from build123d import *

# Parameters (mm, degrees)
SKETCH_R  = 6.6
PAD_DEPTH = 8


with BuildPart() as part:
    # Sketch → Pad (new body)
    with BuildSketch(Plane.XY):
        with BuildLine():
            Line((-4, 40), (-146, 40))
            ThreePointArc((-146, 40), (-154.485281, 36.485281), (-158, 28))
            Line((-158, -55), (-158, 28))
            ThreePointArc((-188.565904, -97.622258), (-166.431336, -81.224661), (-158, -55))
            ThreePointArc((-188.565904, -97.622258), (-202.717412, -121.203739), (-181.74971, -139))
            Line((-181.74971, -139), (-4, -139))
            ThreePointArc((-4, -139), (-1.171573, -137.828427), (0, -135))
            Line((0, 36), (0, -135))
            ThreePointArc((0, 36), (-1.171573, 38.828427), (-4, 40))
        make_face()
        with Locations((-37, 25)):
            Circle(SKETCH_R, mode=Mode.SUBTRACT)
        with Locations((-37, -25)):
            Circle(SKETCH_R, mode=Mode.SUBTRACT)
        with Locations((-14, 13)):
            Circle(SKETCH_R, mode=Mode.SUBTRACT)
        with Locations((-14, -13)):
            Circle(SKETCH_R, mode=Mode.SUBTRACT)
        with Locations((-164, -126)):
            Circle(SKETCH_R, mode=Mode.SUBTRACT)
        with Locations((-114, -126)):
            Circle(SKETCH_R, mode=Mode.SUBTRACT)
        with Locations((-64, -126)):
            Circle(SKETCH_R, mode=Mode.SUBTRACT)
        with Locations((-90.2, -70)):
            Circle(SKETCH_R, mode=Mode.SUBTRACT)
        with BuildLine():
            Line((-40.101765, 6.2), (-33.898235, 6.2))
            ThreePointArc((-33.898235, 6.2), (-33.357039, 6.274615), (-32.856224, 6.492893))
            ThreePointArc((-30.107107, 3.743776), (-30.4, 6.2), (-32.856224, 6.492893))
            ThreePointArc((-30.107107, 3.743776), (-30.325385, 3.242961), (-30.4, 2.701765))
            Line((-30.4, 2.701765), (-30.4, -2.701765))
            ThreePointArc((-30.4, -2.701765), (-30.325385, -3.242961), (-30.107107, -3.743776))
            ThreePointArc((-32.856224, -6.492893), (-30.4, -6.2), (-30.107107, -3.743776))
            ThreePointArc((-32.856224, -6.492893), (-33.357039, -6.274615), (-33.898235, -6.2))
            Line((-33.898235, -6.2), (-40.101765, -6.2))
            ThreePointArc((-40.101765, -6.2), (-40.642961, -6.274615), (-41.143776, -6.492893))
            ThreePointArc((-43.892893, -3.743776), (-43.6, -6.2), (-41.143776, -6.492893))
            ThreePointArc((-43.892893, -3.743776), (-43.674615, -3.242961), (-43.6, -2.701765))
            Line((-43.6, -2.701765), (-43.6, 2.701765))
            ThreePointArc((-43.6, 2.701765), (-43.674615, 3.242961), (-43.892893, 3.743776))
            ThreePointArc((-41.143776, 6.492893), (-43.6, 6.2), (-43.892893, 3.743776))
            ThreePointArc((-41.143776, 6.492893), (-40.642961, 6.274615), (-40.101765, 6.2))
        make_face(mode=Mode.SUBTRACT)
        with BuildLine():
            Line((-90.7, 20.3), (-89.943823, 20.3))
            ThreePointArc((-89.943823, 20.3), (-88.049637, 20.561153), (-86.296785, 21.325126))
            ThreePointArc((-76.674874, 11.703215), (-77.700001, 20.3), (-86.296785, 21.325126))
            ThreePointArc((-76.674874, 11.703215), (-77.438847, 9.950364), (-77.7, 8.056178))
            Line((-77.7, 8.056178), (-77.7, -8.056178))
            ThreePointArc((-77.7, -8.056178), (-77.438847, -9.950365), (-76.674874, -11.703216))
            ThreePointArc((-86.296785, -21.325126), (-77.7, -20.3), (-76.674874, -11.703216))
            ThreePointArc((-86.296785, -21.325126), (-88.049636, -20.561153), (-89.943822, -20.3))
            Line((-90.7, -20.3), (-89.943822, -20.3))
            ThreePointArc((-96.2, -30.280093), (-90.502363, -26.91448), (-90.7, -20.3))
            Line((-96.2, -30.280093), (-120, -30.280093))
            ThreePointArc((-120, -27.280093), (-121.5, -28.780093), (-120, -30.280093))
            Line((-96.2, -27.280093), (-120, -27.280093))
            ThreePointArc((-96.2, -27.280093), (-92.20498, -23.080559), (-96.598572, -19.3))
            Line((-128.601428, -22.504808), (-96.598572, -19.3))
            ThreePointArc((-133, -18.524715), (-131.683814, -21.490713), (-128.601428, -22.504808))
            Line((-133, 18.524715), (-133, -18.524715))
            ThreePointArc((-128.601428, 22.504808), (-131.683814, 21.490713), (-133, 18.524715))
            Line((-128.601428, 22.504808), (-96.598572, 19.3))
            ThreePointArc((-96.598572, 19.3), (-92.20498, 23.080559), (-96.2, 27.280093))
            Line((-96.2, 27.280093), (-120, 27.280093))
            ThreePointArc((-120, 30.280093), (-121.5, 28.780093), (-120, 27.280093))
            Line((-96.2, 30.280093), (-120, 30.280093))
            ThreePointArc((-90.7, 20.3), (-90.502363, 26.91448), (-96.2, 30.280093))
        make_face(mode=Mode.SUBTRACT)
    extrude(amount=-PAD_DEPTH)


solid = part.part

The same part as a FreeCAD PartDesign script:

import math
import FreeCAD as App
import Part
import Sketcher
Q = App.Units.Quantity

doc = App.newDocument("Part")
body = doc.addObject("PartDesign::Body", "Body")

sketch1 = body.newObject("Sketcher::SketchObject", "Sketch")
sketch1.AttachmentSupport = (doc.getObject("XY_Plane"), [""])
sketch1.MapMode = "FlatFace"
sketch1.addGeometry(Part.LineSegment(App.Vector(-4, 40, 0), App.Vector(-146, 40, 0)), False)
sketch1.addGeometry(Part.ArcOfCircle(Part.Circle(App.Vector(-146, 28, 0), App.Vector(0, 0, 1), 12), math.radians(90), math.radians(180)), False)
sketch1.addGeometry(Part.LineSegment(App.Vector(-158, 28, 0), App.Vector(-158, -55, 0)), False)
sketch1.addGeometry(Part.ArcOfCircle(Part.Circle(App.Vector(-203, -55, 0), App.Vector(0, 0, 1), 45), math.radians(-71), math.radians(0)), False)
sketch1.addGeometry(Part.ArcOfCircle(Part.Circle(App.Vector(-181.7, -117.7, 0), App.Vector(0, 0, 1), 21.3), math.radians(109), math.radians(270)), False)
sketch1.addGeometry(Part.LineSegment(App.Vector(-181.7, -139, 0), App.Vector(-4, -139, 0)), False)
sketch1.addGeometry(Part.ArcOfCircle(Part.Circle(App.Vector(-4, -135, 0), App.Vector(0, 0, 1), 4), math.radians(-90), math.radians(0)), False)
sketch1.addGeometry(Part.LineSegment(App.Vector(0, -135, 0), App.Vector(0, 36, 0)), False)
sketch1.addGeometry(Part.ArcOfCircle(Part.Circle(App.Vector(-4, 36, 0), App.Vector(0, 0, 1), 4), math.radians(0), math.radians(90)), False)
sketch1.addGeometry(Part.Circle(App.Vector(-164, -126, 0), App.Vector(0, 0, 1), 6.6), False)
sketch1.addGeometry(Part.Circle(App.Vector(-114, -126, 0), App.Vector(0, 0, 1), 6.6), False)
sketch1.addGeometry(Part.Circle(App.Vector(-90.2, -70, 0), App.Vector(0, 0, 1), 6.6), False)
sketch1.addGeometry(Part.Circle(App.Vector(-64, -126, 0), App.Vector(0, 0, 1), 6.6), False)
sketch1.addGeometry(Part.ArcOfCircle(Part.Circle(App.Vector(-96.2, 23.8, 0), App.Vector(0, 0, 1), 6.5), math.radians(-32), math.radians(90)), False)
sketch1.addGeometry(Part.LineSegment(App.Vector(-90.7, 20.3, 0), App.Vector(-89.9, 20.3, 0)), False)
sketch1.addGeometry(Part.ArcOfCircle(Part.Circle(App.Vector(-89.9, 27.3, 0), App.Vector(0, 0, 1), 7), math.radians(-90), math.radians(-59)), False)
sketch1.addGeometry(Part.ArcOfCircle(Part.Circle(App.Vector(-82.6, 15.4, 0), App.Vector(0, 0, 1), 7), math.radians(-31), math.radians(121)), False)
sketch1.addGeometry(Part.ArcOfCircle(Part.Circle(App.Vector(-70.7, 8.1, 0), App.Vector(0, 0, 1), 7), math.radians(149), math.radians(180)), False)
sketch1.addGeometry(Part.LineSegment(App.Vector(-77.7, 8.1, 0), App.Vector(-77.7, -8.1, 0)), False)
sketch1.addGeometry(Part.ArcOfCircle(Part.Circle(App.Vector(-70.7, -8.1, 0), App.Vector(0, 0, 1), 7), math.radians(180), math.radians(211)), False)
sketch1.addGeometry(Part.ArcOfCircle(Part.Circle(App.Vector(-82.6, -15.4, 0), App.Vector(0, 0, 1), 7), math.radians(-121), math.radians(31)), False)
sketch1.addGeometry(Part.ArcOfCircle(Part.Circle(App.Vector(-89.9, -27.3, 0), App.Vector(0, 0, 1), 7), math.radians(59), math.radians(90)), False)
sketch1.addGeometry(Part.LineSegment(App.Vector(-89.9, -20.3, 0), App.Vector(-90.7, -20.3, 0)), False)
sketch1.addGeometry(Part.ArcOfCircle(Part.Circle(App.Vector(-96.2, -23.8, 0), App.Vector(0, 0, 1), 6.5), math.radians(-90), math.radians(32)), False)
sketch1.addGeometry(Part.LineSegment(App.Vector(-96.2, -30.3, 0), App.Vector(-120, -30.3, 0)), False)
sketch1.addGeometry(Part.ArcOfCircle(Part.Circle(App.Vector(-120, -28.8, 0), App.Vector(0, 0, 1), 1.5), math.radians(90), math.radians(270)), False)
sketch1.addGeometry(Part.LineSegment(App.Vector(-120, -27.3, 0), App.Vector(-96.2, -27.3, 0)), False)
sketch1.addGeometry(Part.ArcOfCircle(Part.Circle(App.Vector(-96.2, -23.3, 0), App.Vector(0, 0, 1), 4), math.radians(-90), math.radians(96)), False)
sketch1.addGeometry(Part.LineSegment(App.Vector(-96.6, -19.3, 0), App.Vector(-128.6, -22.5, 0)), False)
sketch1.addGeometry(Part.ArcOfCircle(Part.Circle(App.Vector(-129, -18.5, 0), App.Vector(0, 0, 1), 4), math.radians(180), math.radians(276)), False)
sketch1.addGeometry(Part.LineSegment(App.Vector(-133, -18.5, 0), App.Vector(-133, 18.5, 0)), False)
sketch1.addGeometry(Part.ArcOfCircle(Part.Circle(App.Vector(-129, 18.5, 0), App.Vector(0, 0, 1), 4), math.radians(84), math.radians(180)), False)
sketch1.addGeometry(Part.LineSegment(App.Vector(-128.6, 22.5, 0), App.Vector(-96.6, 19.3, 0)), False)
sketch1.addGeometry(Part.ArcOfCircle(Part.Circle(App.Vector(-96.2, 23.3, 0), App.Vector(0, 0, 1), 4), math.radians(-96), math.radians(90)), False)
sketch1.addGeometry(Part.LineSegment(App.Vector(-96.2, 27.3, 0), App.Vector(-120, 27.3, 0)), False)
sketch1.addGeometry(Part.ArcOfCircle(Part.Circle(App.Vector(-120, 28.8, 0), App.Vector(0, 0, 1), 1.5), math.radians(90), math.radians(270)), False)
sketch1.addGeometry(Part.LineSegment(App.Vector(-120, 30.3, 0), App.Vector(-96.2, 30.3, 0)), False)
sketch1.addGeometry(Part.Circle(App.Vector(-37, -25, 0), App.Vector(0, 0, 1), 6.6), False)
sketch1.addGeometry(Part.Circle(App.Vector(-14, -13, 0), App.Vector(0, 0, 1), 6.6), False)
sketch1.addGeometry(Part.ArcOfCircle(Part.Circle(App.Vector(-40.1, 8.2, 0), App.Vector(0, 0, 1), 2), math.radians(-121), math.radians(-90)), False)
sketch1.addGeometry(Part.LineSegment(App.Vector(-40.1, 6.2, 0), App.Vector(-33.9, 6.2, 0)), False)
sketch1.addGeometry(Part.ArcOfCircle(Part.Circle(App.Vector(-33.9, 8.2, 0), App.Vector(0, 0, 1), 2), math.radians(-90), math.radians(-59)), False)
sketch1.addGeometry(Part.ArcOfCircle(Part.Circle(App.Vector(-31.8, 4.8, 0), App.Vector(0, 0, 1), 2), math.radians(-31), math.radians(121)), False)
sketch1.addGeometry(Part.ArcOfCircle(Part.Circle(App.Vector(-28.4, 2.7, 0), App.Vector(0, 0, 1), 2), math.radians(149), math.radians(180)), False)
sketch1.addGeometry(Part.LineSegment(App.Vector(-30.4, 2.7, 0), App.Vector(-30.4, -2.7, 0)), False)
sketch1.addGeometry(Part.ArcOfCircle(Part.Circle(App.Vector(-28.4, -2.7, 0), App.Vector(0, 0, 1), 2), math.radians(180), math.radians(211)), False)
sketch1.addGeometry(Part.ArcOfCircle(Part.Circle(App.Vector(-31.8, -4.8, 0), App.Vector(0, 0, 1), 2), math.radians(-121), math.radians(31)), False)
sketch1.addGeometry(Part.ArcOfCircle(Part.Circle(App.Vector(-33.9, -8.2, 0), App.Vector(0, 0, 1), 2), math.radians(59), math.radians(90)), False)
sketch1.addGeometry(Part.LineSegment(App.Vector(-33.9, -6.2, 0), App.Vector(-40.1, -6.2, 0)), False)
sketch1.addGeometry(Part.ArcOfCircle(Part.Circle(App.Vector(-40.1, -8.2, 0), App.Vector(0, 0, 1), 2), math.radians(90), math.radians(121)), False)
sketch1.addGeometry(Part.ArcOfCircle(Part.Circle(App.Vector(-42.2, -4.8, 0), App.Vector(0, 0, 1), 2), math.radians(149), math.radians(301)), False)
sketch1.addGeometry(Part.ArcOfCircle(Part.Circle(App.Vector(-45.6, -2.7, 0), App.Vector(0, 0, 1), 2), math.radians(-31), math.radians(0)), False)
sketch1.addGeometry(Part.LineSegment(App.Vector(-43.6, -2.7, 0), App.Vector(-43.6, 2.7, 0)), False)
sketch1.addGeometry(Part.ArcOfCircle(Part.Circle(App.Vector(-45.6, 2.7, 0), App.Vector(0, 0, 1), 2), math.radians(0), math.radians(31)), False)
sketch1.addGeometry(Part.ArcOfCircle(Part.Circle(App.Vector(-42.2, 4.8, 0), App.Vector(0, 0, 1), 2), math.radians(59), math.radians(211)), False)
sketch1.addGeometry(Part.Circle(App.Vector(-37, 25, 0), App.Vector(0, 0, 1), 6.6), False)
sketch1.addGeometry(Part.Circle(App.Vector(-14, 13, 0), App.Vector(0, 0, 1), 6.6), False)
sketch1.addConstraint(Sketcher.Constraint("Tangent", 0, 2, 1, 1))
sketch1.addConstraint(Sketcher.Constraint("Tangent", 1, 2, 2, 1))
sketch1.addConstraint(Sketcher.Constraint("Tangent", 2, 2, 3, 2))
sketch1.addConstraint(Sketcher.Constraint("Tangent", 3, 1, 4, 1))
sketch1.addConstraint(Sketcher.Constraint("Tangent", 4, 2, 5, 1))
sketch1.addConstraint(Sketcher.Constraint("Tangent", 5, 2, 6, 1))
sketch1.addConstraint(Sketcher.Constraint("Tangent", 6, 2, 7, 1))
sketch1.addConstraint(Sketcher.Constraint("Tangent", 7, 2, 8, 1))
sketch1.addConstraint(Sketcher.Constraint("Tangent", 8, 2, 0, 1))
sketch1.addConstraint(Sketcher.Constraint("Coincident", 13, 1, 14, 1))
sketch1.addConstraint(Sketcher.Constraint("Tangent", 14, 2, 15, 1))
sketch1.addConstraint(Sketcher.Constraint("Tangent", 15, 2, 16, 2))
sketch1.addConstraint(Sketcher.Constraint("Tangent", 16, 1, 17, 1))
sketch1.addConstraint(Sketcher.Constraint("Tangent", 17, 2, 18, 1))
sketch1.addConstraint(Sketcher.Constraint("Tangent", 18, 2, 19, 1))
sketch1.addConstraint(Sketcher.Constraint("Tangent", 19, 2, 20, 2))
sketch1.addConstraint(Sketcher.Constraint("Tangent", 20, 1, 21, 1))
sketch1.addConstraint(Sketcher.Constraint("Tangent", 21, 2, 22, 1))
sketch1.addConstraint(Sketcher.Constraint("Coincident", 22, 2, 23, 2))
sketch1.addConstraint(Sketcher.Constraint("Tangent", 23, 1, 24, 1))
sketch1.addConstraint(Sketcher.Constraint("Tangent", 24, 2, 25, 2))
sketch1.addConstraint(Sketcher.Constraint("Tangent", 25, 1, 26, 1))
sketch1.addConstraint(Sketcher.Constraint("Tangent", 26, 2, 27, 1))
sketch1.addConstraint(Sketcher.Constraint("Tangent", 27, 2, 28, 1))
sketch1.addConstraint(Sketcher.Constraint("Tangent", 28, 2, 29, 2))
sketch1.addConstraint(Sketcher.Constraint("Tangent", 29, 1, 30, 1))
sketch1.addConstraint(Sketcher.Constraint("Tangent", 30, 2, 31, 2))
sketch1.addConstraint(Sketcher.Constraint("Tangent", 31, 1, 32, 1))
sketch1.addConstraint(Sketcher.Constraint("Tangent", 32, 2, 33, 1))
sketch1.addConstraint(Sketcher.Constraint("Tangent", 33, 2, 34, 1))
sketch1.addConstraint(Sketcher.Constraint("Tangent", 34, 2, 35, 2))
sketch1.addConstraint(Sketcher.Constraint("Tangent", 35, 1, 36, 1))
sketch1.addConstraint(Sketcher.Constraint("Tangent", 36, 2, 13, 2))
sketch1.addConstraint(Sketcher.Constraint("Tangent", 39, 2, 40, 1))
sketch1.addConstraint(Sketcher.Constraint("Tangent", 40, 2, 41, 1))
sketch1.addConstraint(Sketcher.Constraint("Tangent", 41, 2, 42, 2))
sketch1.addConstraint(Sketcher.Constraint("Tangent", 42, 1, 43, 1))
sketch1.addConstraint(Sketcher.Constraint("Tangent", 43, 2, 44, 1))
sketch1.addConstraint(Sketcher.Constraint("Tangent", 44, 2, 45, 1))
sketch1.addConstraint(Sketcher.Constraint("Tangent", 45, 2, 46, 2))
sketch1.addConstraint(Sketcher.Constraint("Tangent", 46, 1, 47, 1))
sketch1.addConstraint(Sketcher.Constraint("Tangent", 47, 2, 48, 1))
sketch1.addConstraint(Sketcher.Constraint("Tangent", 48, 2, 49, 1))
sketch1.addConstraint(Sketcher.Constraint("Tangent", 49, 2, 50, 2))
sketch1.addConstraint(Sketcher.Constraint("Tangent", 50, 1, 51, 1))
sketch1.addConstraint(Sketcher.Constraint("Tangent", 51, 2, 52, 1))
sketch1.addConstraint(Sketcher.Constraint("Tangent", 52, 2, 53, 1))
sketch1.addConstraint(Sketcher.Constraint("Tangent", 53, 2, 54, 2))
sketch1.addConstraint(Sketcher.Constraint("Tangent", 54, 1, 39, 1))
sketch1.addConstraint(Sketcher.Constraint("Horizontal", 0))
sketch1.addConstraint(Sketcher.Constraint("Vertical", 2))
sketch1.addConstraint(Sketcher.Constraint("Horizontal", 5))
sketch1.addConstraint(Sketcher.Constraint("Vertical", 7))
sketch1.addConstraint(Sketcher.Constraint("Horizontal", 14))
sketch1.addConstraint(Sketcher.Constraint("Vertical", 18))
sketch1.addConstraint(Sketcher.Constraint("Horizontal", 22))
sketch1.addConstraint(Sketcher.Constraint("Horizontal", 24))
sketch1.addConstraint(Sketcher.Constraint("Horizontal", 26))
sketch1.addConstraint(Sketcher.Constraint("Vertical", 30))
sketch1.addConstraint(Sketcher.Constraint("Horizontal", 34))
sketch1.addConstraint(Sketcher.Constraint("Horizontal", 36))
sketch1.addConstraint(Sketcher.Constraint("Horizontal", 40))
sketch1.addConstraint(Sketcher.Constraint("Vertical", 44))
sketch1.addConstraint(Sketcher.Constraint("Horizontal", 48))
sketch1.addConstraint(Sketcher.Constraint("Vertical", 52))
sketch1.addConstraint(Sketcher.Constraint("Equal", 6, 8))
sketch1.addConstraint(Sketcher.Constraint("Equal", 9, 10))
sketch1.addConstraint(Sketcher.Constraint("Equal", 10, 11))
sketch1.addConstraint(Sketcher.Constraint("Equal", 11, 12))
sketch1.addConstraint(Sketcher.Constraint("Equal", 16, 17))
sketch1.addConstraint(Sketcher.Constraint("Equal", 17, 19))
sketch1.addConstraint(Sketcher.Constraint("Equal", 19, 20))
sketch1.addConstraint(Sketcher.Constraint("Equal", 20, 21))
sketch1.addConstraint(Sketcher.Constraint("Equal", 13, 23))
sketch1.addConstraint(Sketcher.Constraint("Equal", 8, 27))
sketch1.addConstraint(Sketcher.Constraint("Equal", 27, 29))
sketch1.addConstraint(Sketcher.Constraint("Equal", 29, 31))
sketch1.addConstraint(Sketcher.Constraint("Equal", 31, 33))
sketch1.addConstraint(Sketcher.Constraint("Equal", 25, 35))
sketch1.addConstraint(Sketcher.Constraint("Equal", 12, 37))
sketch1.addConstraint(Sketcher.Constraint("Equal", 37, 38))
sketch1.addConstraint(Sketcher.Constraint("Equal", 39, 41))
sketch1.addConstraint(Sketcher.Constraint("Equal", 41, 42))
sketch1.addConstraint(Sketcher.Constraint("Equal", 42, 43))
sketch1.addConstraint(Sketcher.Constraint("Equal", 43, 45))
sketch1.addConstraint(Sketcher.Constraint("Equal", 45, 46))
sketch1.addConstraint(Sketcher.Constraint("Equal", 46, 47))
sketch1.addConstraint(Sketcher.Constraint("Equal", 47, 49))
sketch1.addConstraint(Sketcher.Constraint("Equal", 49, 50))
sketch1.addConstraint(Sketcher.Constraint("Equal", 50, 51))
sketch1.addConstraint(Sketcher.Constraint("Equal", 51, 53))
sketch1.addConstraint(Sketcher.Constraint("Equal", 53, 54))
sketch1.addConstraint(Sketcher.Constraint("Equal", 38, 55))
sketch1.addConstraint(Sketcher.Constraint("Equal", 55, 56))
sketch1.addConstraint(Sketcher.Constraint("Symmetric", 16, 3, 20, 3, -1))
sketch1.addConstraint(Sketcher.Constraint("Symmetric", 15, 3, 21, 3, -1))
sketch1.addConstraint(Sketcher.Constraint("Symmetric", 13, 3, 23, 3, -1))
sketch1.addConstraint(Sketcher.Constraint("Symmetric", 42, 3, 46, 3, -1))
sketch1.addConstraint(Sketcher.Constraint("Symmetric", 39, 3, 49, 3, -1))
sketch1.addConstraint(Sketcher.Constraint("Symmetric", 37, 3, 55, 3, -1))
sketch1.addConstraint(Sketcher.Constraint("Symmetric", 38, 3, 56, 3, -1))
sketch1.addConstraint(Sketcher.Constraint("Symmetric", 28, 2, 31, 1, -1))
sketch1.addConstraint(Sketcher.Constraint("PointOnObject", 6, 2, -2))
sketch1.addConstraint(Sketcher.Constraint("Horizontal", 9, 3, 10, 3))
sketch1.addConstraint(Sketcher.Constraint("Horizontal", 10, 3, 12, 3))
sketch1.addConstraint(Sketcher.Constraint("Horizontal", 46, 3, 50, 3))
sketch1.addConstraint(Sketcher.Constraint("Horizontal", 45, 3, 51, 3))
sketch1.addConstraint(Sketcher.Constraint("Horizontal", 43, 3, 53, 3))
sketch1.addConstraint(Sketcher.Constraint("Vertical", 23, 3, 27, 3))
sketch1.addConstraint(Sketcher.Constraint("Vertical", 25, 3, 35, 3))
sketch1.addConstraint(Sketcher.Constraint("Radius", 1, Q("12.000001 mm")))
sketch1.addConstraint(Sketcher.Constraint("Radius", 3, Q("44.999999 mm")))
sketch1.addConstraint(Sketcher.Constraint("Radius", 6, Q("4 mm")))
sketch1.addConstraint(Sketcher.Constraint("Radius", 16, Q("7 mm")))
sketch1.addConstraint(Sketcher.Constraint("Radius", 39, Q("2.000001 mm")))
sketch1.addConstraint(Sketcher.Constraint("Diameter", 9, Q("13.2 mm")))
sketch1.addConstraint(Sketcher.Constraint("Radius", 25, Q("1.5 mm")))
sketch1.addConstraint(Sketcher.Constraint("DistanceX", 0, 2, 0, 1, Q("142 mm")))
sketch1.addConstraint(Sketcher.Constraint("DistanceY", 2, 2, 2, 1, Q("83 mm")))
sketch1.addConstraint(Sketcher.Constraint("DistanceY", 7, 1, 7, 2, Q("171 mm")))
sketch1.addConstraint(Sketcher.Constraint("DistanceX", 24, 2, 24, 1, Q("23.8 mm")))
sketch1.addConstraint(Sketcher.Constraint("DistanceY", -1, 1, 1, 3, Q("27.999999 mm")))
sketch1.addConstraint(Sketcher.Constraint("DistanceX", 9, 3, -1, 1, Q("164 mm")))
sketch1.addConstraint(Sketcher.Constraint("DistanceY", 9, 3, -1, 1, Q("126 mm")))
sketch1.addConstraint(Sketcher.Constraint("DistanceX", 10, 3, -1, 1, Q("114 mm")))
sketch1.addConstraint(Sketcher.Constraint("DistanceY", 11, 3, -1, 1, Q("70 mm")))
sketch1.addConstraint(Sketcher.Constraint("DistanceX", 12, 3, -1, 1, Q("64 mm")))
sketch1.addConstraint(Sketcher.Constraint("DistanceX", 25, 3, -1, 1, Q("120 mm")))
sketch1.addConstraint(Sketcher.Constraint("DistanceX", 29, 3, -1, 1, Q("129 mm")))
sketch1.addConstraint(Sketcher.Constraint("DistanceX", 37, 3, -1, 1, Q("37 mm")))
sketch1.addConstraint(Sketcher.Constraint("DistanceY", 37, 3, -1, 1, Q("25 mm")))
sketch1.addConstraint(Sketcher.Constraint("DistanceX", 38, 3, -1, 1, Q("14 mm")))
sketch1.addConstraint(Sketcher.Constraint("DistanceY", 38, 3, -1, 1, Q("13 mm")))
sketch1.addConstraint(Sketcher.Constraint("DistanceX", 11, 3, -1, 1, Q("90.2 mm")))
sketch1.addConstraint(Sketcher.Constraint("DistanceX", 17, 3, -1, 1, Q("70.700001 mm")))
sketch1.addConstraint(Sketcher.Constraint("DistanceY", 21, 3, -1, 1, Q("27.299999 mm")))
sketch1.addConstraint(Sketcher.Constraint("DistanceY", -1, 1, 39, 3, Q("8.200001 mm")))
sketch1.addConstraint(Sketcher.Constraint("DistanceX", 43, 3, -1, 1, Q("28.399999 mm")))
sketch1.addConstraint(Sketcher.Constraint("DistanceX", 51, 3, -1, 1, Q("45.600001 mm")))
sketch1.addConstraint(Sketcher.Constraint("DistanceX", 13, 1, -1, 1, Q("90.7 mm")))
sketch1.addConstraint(Sketcher.Constraint("DistanceY", 27, 2, -1, 1, Q("19.3 mm")))
sketch1.addConstraint(Sketcher.Constraint("Radius", 4, Q("21.25029 mm")))
sketch1.addConstraint(Sketcher.Constraint("DistanceX", 22, 2, 22, 1, Q("0.756178 mm")))
sketch1.addConstraint(Sketcher.Constraint("DistanceX", 40, 1, 40, 2, Q("6.20353 mm")))
sketch1.addConstraint(Sketcher.Constraint("DistanceY", 30, 1, 30, 2, Q("37.04943 mm")))
sketch1.addConstraint(Sketcher.Constraint("DistanceY", 44, 2, 44, 1, Q("5.40353 mm")))
sketch1.addConstraint(Sketcher.Constraint("DistanceY", 18, 2, 18, 1, Q("16.112356 mm")))
pad1 = body.newObject("PartDesign::Pad", "Pad")
pad1.Profile = sketch1
pad1.Length = 8
pad1.Reversed = True

doc.recompute()
